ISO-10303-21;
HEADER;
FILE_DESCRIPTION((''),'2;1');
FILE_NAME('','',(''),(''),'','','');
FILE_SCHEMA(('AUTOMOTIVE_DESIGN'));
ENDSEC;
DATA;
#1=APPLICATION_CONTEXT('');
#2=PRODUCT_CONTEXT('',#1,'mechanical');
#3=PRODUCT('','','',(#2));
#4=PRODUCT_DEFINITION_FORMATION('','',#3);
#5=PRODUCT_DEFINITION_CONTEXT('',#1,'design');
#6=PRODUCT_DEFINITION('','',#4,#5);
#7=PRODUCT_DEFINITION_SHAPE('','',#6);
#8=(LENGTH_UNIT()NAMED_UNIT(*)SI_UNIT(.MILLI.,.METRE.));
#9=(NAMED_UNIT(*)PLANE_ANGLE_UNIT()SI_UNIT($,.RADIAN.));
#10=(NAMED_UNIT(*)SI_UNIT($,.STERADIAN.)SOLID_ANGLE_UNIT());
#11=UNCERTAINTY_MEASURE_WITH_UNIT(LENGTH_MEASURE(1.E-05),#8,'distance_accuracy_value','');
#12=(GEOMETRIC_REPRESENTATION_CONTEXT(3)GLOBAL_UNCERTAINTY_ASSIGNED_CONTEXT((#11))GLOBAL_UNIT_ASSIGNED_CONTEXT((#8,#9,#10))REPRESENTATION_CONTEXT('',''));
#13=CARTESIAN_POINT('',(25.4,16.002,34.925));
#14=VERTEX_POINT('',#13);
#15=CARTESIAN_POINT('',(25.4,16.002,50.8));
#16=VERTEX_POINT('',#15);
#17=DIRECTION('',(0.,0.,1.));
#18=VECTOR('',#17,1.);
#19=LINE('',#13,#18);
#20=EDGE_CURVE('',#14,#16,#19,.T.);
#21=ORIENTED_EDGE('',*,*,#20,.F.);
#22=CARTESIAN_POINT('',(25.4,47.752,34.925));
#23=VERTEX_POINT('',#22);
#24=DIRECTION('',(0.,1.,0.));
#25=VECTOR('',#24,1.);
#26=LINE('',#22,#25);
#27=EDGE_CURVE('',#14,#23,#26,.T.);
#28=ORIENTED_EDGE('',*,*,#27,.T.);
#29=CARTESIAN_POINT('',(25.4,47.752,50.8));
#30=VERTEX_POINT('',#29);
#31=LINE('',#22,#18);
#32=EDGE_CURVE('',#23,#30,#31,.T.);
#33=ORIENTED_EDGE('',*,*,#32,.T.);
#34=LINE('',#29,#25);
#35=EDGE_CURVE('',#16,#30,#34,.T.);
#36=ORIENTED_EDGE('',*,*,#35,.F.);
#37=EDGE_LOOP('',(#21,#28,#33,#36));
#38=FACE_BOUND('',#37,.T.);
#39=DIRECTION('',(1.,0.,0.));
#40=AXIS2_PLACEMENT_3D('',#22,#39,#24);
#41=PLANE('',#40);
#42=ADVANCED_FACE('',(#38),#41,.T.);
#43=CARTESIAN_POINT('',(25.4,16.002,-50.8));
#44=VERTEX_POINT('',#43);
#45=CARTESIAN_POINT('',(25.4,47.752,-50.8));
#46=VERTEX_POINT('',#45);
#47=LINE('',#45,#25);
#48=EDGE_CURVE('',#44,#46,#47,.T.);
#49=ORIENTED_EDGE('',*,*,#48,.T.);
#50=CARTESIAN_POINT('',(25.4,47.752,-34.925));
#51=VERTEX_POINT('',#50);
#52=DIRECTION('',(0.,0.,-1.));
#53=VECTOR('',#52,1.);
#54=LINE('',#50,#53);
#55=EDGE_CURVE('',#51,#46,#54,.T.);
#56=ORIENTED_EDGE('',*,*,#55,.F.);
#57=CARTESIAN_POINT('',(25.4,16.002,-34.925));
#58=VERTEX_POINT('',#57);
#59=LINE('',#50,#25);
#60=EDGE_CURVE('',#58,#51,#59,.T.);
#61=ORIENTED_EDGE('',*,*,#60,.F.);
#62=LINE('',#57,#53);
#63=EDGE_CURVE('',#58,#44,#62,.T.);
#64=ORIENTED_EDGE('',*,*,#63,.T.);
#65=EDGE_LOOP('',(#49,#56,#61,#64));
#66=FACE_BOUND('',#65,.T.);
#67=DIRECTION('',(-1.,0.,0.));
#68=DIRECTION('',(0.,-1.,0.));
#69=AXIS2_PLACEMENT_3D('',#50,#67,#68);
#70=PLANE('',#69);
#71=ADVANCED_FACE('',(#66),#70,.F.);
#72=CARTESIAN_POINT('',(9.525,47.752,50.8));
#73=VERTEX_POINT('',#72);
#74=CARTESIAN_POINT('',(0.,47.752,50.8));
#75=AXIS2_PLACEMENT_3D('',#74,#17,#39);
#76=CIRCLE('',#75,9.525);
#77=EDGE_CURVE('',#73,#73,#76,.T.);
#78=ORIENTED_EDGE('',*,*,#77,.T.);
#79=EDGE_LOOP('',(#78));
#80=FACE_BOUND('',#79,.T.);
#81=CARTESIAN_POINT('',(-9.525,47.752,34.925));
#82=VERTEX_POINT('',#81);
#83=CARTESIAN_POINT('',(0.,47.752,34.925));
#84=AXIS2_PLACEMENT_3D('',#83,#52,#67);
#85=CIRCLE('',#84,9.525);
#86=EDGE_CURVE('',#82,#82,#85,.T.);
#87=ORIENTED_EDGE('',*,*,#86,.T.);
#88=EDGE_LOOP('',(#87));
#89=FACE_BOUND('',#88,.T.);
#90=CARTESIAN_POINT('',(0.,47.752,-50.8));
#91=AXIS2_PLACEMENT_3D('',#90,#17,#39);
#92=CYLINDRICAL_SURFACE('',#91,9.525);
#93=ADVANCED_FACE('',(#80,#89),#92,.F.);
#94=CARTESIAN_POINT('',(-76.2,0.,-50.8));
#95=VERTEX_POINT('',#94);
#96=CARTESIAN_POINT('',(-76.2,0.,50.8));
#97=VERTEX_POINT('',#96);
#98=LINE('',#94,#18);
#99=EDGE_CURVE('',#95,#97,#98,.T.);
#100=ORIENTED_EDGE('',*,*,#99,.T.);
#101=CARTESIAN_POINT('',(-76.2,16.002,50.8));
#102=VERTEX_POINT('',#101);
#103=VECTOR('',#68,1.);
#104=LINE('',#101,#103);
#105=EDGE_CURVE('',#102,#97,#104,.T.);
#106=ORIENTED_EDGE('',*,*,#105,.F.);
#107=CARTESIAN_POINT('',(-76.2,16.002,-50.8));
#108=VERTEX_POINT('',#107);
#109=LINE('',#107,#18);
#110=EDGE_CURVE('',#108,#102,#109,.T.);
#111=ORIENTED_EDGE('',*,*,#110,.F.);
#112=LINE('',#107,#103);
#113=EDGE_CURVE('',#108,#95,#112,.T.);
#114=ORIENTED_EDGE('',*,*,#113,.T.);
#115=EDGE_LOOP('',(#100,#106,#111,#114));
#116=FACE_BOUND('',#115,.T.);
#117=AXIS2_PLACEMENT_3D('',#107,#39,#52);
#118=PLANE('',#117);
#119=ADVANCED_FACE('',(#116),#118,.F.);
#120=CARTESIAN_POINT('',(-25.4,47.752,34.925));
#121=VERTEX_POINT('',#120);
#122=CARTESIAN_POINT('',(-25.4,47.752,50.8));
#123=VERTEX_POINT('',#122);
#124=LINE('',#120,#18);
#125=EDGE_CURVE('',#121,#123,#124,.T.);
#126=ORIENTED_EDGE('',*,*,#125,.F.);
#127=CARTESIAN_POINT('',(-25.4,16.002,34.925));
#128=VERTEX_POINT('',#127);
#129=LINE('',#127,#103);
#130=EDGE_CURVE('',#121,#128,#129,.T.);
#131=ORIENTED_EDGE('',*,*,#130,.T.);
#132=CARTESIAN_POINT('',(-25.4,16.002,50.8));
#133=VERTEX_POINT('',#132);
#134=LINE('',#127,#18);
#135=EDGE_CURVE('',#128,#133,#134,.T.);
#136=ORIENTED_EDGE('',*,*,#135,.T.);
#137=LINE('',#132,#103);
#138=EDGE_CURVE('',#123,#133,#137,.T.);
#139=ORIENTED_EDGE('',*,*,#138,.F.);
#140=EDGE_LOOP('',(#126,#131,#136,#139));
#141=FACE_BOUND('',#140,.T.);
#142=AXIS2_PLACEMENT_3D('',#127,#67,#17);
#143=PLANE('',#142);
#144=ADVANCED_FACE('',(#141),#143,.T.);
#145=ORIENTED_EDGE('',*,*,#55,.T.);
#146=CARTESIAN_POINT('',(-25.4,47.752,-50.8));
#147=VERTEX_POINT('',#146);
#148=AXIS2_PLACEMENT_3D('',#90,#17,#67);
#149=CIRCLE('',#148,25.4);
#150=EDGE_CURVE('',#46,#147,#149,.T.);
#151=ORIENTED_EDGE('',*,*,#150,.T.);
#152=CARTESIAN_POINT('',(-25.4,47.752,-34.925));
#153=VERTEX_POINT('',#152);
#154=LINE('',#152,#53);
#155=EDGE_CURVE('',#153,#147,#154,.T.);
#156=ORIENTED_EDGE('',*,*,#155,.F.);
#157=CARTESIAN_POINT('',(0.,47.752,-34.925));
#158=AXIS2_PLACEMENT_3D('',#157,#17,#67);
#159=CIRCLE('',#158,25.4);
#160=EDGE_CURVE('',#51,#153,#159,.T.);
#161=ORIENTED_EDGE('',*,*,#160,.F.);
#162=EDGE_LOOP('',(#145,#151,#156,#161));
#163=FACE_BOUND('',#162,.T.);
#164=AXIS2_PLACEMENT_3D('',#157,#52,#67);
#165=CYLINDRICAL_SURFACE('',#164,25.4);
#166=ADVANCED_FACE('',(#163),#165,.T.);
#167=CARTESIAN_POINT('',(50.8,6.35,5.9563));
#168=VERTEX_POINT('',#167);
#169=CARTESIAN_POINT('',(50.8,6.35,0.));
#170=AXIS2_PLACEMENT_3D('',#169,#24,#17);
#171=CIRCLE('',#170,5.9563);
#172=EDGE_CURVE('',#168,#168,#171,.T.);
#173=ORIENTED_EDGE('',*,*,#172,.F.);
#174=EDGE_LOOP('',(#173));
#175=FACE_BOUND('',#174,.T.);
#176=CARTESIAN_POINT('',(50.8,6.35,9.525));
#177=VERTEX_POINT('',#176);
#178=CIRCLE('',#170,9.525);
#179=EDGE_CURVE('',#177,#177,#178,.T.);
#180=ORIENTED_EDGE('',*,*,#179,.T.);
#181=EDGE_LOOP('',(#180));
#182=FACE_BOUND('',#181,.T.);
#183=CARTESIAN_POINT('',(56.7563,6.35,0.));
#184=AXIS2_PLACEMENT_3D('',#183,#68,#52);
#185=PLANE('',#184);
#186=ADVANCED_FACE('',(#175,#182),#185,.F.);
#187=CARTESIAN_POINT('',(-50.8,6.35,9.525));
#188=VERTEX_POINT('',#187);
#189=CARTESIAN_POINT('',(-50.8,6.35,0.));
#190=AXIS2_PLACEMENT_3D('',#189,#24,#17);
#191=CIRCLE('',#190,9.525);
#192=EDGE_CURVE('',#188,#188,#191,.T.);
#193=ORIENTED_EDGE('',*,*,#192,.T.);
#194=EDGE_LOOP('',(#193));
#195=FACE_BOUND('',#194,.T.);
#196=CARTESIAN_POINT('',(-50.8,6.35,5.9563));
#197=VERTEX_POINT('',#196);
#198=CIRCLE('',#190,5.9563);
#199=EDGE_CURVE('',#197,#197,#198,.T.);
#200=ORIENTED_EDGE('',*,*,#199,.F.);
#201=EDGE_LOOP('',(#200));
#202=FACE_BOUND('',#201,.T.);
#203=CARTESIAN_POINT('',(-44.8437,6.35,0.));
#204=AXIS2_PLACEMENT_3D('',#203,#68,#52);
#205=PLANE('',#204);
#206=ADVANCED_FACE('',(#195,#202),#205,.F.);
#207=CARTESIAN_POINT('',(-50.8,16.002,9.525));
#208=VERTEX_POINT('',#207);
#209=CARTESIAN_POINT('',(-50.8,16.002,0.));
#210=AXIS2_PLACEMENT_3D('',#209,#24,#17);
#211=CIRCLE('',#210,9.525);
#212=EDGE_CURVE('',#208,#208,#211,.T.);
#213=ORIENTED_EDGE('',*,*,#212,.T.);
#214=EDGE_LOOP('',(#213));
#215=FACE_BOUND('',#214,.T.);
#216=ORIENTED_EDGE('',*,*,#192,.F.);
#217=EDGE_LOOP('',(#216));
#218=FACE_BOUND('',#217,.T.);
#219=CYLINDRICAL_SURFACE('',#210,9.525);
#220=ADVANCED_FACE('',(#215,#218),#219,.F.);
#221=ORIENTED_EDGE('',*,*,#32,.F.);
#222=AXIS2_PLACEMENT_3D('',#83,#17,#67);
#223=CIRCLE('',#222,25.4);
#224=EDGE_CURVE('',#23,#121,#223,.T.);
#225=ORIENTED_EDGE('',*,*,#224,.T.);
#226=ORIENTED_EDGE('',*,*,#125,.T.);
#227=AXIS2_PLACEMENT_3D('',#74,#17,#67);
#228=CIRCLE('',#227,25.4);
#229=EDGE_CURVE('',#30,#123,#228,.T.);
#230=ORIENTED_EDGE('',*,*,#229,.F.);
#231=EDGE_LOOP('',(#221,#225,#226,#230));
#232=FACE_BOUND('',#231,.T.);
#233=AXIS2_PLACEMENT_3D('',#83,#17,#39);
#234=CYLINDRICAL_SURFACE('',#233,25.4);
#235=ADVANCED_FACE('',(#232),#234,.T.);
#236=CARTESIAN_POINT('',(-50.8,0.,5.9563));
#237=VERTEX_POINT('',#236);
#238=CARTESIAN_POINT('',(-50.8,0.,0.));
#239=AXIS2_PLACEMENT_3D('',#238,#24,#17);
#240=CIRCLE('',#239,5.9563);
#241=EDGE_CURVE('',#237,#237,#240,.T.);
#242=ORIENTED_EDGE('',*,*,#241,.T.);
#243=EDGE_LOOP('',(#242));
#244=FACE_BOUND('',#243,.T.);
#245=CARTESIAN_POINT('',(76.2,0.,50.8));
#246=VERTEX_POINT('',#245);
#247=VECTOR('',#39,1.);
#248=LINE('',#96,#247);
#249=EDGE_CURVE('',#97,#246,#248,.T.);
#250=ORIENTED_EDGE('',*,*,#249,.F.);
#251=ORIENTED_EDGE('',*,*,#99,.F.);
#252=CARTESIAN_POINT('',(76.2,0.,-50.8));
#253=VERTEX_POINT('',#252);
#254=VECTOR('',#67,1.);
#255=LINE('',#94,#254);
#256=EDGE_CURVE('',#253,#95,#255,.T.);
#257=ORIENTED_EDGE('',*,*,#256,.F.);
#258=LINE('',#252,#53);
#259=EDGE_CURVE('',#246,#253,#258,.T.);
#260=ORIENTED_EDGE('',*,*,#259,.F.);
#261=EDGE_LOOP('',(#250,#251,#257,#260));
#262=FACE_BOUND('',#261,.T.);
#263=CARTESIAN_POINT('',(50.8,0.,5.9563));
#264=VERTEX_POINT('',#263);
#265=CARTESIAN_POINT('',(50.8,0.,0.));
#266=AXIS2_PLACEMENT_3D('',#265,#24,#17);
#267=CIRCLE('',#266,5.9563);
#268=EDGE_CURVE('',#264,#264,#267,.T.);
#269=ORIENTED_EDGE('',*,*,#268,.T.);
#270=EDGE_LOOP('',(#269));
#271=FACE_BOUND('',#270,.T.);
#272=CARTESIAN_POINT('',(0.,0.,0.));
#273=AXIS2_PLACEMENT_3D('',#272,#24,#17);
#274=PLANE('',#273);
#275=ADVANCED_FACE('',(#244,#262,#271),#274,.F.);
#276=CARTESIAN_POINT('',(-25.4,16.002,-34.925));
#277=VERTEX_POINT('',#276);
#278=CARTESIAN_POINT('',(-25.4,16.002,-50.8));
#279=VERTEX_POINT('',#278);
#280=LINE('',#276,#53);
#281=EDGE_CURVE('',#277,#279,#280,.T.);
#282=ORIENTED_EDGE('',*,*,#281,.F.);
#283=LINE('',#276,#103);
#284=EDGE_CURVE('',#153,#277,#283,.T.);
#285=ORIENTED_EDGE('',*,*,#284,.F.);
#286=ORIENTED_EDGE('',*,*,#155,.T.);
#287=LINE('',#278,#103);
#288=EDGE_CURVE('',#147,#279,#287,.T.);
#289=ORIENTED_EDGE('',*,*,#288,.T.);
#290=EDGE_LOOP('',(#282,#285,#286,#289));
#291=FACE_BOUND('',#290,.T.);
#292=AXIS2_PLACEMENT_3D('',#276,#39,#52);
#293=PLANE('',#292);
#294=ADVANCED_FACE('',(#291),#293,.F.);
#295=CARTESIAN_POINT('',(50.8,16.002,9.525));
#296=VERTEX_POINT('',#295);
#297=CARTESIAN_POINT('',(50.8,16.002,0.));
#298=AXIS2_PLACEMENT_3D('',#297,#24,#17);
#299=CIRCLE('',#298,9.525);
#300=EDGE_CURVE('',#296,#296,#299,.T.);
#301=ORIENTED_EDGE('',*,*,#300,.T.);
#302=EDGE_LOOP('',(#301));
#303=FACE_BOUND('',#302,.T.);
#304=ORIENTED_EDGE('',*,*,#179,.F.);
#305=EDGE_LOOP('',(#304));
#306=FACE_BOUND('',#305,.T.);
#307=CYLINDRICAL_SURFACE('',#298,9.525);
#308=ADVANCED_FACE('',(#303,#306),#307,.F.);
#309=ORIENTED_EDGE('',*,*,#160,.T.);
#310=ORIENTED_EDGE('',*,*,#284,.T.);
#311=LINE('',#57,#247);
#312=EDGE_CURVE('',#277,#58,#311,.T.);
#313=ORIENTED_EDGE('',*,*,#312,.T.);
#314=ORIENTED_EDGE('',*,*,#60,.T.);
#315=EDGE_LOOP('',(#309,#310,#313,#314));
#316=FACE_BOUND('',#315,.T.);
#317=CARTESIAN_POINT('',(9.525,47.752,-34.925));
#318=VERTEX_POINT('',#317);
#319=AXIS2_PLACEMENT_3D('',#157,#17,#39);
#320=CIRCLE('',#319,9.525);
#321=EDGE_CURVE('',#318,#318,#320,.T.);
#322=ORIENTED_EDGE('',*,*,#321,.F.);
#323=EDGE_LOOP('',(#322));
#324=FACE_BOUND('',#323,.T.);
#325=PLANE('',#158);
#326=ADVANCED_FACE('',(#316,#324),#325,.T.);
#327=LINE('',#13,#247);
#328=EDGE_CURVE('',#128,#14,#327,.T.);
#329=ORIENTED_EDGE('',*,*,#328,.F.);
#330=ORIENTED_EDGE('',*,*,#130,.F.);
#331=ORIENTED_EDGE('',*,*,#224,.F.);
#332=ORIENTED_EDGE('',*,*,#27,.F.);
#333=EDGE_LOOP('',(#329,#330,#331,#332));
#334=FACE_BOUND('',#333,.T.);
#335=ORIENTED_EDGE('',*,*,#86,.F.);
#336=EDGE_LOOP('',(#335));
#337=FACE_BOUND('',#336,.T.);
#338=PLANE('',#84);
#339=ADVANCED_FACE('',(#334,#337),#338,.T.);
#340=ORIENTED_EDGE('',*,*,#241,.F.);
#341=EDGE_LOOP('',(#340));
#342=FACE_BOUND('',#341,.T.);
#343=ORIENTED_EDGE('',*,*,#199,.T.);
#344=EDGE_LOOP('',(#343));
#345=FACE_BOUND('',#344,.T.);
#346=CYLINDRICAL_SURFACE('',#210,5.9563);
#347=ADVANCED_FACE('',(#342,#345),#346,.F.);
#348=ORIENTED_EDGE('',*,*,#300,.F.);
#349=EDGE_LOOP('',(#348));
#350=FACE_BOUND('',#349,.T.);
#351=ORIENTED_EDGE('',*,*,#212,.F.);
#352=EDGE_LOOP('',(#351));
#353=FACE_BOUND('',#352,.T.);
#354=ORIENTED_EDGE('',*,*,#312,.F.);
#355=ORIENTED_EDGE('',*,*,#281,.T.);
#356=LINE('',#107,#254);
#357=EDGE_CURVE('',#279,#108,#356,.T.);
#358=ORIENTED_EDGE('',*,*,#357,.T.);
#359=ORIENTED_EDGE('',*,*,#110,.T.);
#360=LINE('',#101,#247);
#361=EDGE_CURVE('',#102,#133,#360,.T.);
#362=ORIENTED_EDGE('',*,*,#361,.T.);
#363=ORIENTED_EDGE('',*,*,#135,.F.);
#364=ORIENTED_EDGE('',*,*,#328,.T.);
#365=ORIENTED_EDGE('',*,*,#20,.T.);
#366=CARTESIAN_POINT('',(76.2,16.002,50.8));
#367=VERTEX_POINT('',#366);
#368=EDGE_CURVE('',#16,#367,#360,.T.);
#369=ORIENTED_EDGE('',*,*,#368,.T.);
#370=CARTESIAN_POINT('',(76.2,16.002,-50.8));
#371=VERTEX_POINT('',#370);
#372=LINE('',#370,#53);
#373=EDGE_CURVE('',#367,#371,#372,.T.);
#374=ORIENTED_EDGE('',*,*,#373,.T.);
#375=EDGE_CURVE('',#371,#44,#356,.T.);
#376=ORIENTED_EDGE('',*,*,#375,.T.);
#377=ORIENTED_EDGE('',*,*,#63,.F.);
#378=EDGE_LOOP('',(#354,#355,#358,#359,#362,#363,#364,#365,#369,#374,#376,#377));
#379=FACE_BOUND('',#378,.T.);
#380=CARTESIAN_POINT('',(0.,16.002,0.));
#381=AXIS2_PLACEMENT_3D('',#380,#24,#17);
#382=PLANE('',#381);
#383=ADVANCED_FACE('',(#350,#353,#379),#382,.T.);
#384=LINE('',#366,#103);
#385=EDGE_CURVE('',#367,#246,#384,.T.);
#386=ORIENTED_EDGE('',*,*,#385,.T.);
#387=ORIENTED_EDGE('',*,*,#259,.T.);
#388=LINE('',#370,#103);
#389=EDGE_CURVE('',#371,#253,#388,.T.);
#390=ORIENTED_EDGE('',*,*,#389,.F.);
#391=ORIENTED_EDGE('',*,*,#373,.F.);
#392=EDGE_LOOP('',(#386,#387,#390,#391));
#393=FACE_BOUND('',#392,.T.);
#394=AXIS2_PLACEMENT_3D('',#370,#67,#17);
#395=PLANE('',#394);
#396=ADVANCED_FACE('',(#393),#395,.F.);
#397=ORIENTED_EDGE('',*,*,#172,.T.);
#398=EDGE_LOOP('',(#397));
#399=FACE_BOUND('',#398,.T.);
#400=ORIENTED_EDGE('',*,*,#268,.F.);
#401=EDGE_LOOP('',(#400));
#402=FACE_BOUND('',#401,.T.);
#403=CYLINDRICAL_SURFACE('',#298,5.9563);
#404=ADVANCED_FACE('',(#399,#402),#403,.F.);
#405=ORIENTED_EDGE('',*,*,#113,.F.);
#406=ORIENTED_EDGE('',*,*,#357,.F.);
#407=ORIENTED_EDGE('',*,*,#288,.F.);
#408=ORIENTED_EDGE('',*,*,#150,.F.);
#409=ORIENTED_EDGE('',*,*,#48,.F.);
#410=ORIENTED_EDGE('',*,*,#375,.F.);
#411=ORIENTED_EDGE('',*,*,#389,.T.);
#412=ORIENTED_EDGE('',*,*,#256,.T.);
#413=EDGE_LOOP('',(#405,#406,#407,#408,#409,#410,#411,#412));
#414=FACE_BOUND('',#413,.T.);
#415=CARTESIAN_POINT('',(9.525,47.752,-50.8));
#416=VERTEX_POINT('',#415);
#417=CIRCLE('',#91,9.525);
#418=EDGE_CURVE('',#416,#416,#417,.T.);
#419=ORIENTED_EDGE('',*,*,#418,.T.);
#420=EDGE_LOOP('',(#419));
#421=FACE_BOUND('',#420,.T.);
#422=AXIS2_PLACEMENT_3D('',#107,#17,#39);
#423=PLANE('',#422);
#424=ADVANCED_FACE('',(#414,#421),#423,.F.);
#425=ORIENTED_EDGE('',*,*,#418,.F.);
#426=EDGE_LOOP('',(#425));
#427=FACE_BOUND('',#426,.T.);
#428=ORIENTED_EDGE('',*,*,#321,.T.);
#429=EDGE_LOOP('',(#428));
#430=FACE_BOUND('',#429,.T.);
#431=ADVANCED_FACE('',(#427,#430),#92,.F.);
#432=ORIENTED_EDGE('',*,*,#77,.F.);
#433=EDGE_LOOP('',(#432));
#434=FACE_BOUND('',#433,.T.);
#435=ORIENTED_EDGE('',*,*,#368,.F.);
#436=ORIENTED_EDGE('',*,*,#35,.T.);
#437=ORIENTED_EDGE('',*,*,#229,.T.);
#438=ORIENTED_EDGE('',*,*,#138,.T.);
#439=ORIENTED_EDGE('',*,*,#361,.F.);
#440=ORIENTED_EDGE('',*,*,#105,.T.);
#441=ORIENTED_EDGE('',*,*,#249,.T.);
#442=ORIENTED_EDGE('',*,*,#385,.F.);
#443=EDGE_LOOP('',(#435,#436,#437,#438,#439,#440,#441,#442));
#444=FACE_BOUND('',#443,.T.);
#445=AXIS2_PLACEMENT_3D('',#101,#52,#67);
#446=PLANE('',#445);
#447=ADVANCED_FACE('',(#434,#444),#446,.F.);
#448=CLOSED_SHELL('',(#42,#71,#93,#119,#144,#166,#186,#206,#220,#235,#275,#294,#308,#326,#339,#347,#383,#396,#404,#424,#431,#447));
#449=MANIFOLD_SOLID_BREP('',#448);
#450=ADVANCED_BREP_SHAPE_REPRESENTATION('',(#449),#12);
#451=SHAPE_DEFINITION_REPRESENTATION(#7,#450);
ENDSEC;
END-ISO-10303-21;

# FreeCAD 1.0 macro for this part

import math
import FreeCAD as App
import Part
import Sketcher
Q = App.Units.Quantity


def add_polygon(sketch, points):
    """Adds a closed chain of lines whose ends are joined by coincident constraints."""
    first, n = sketch.GeometryCount, len(points)
    for a, b in zip(points, points[1:] + points[:1]):
        sketch.addGeometry(Part.LineSegment(App.Vector(*a, 0), App.Vector(*b, 0)), False)
    for i in range(n):
        sketch.addConstraint(Sketcher.Constraint("Coincident", first + i, 2, first + (i + 1) % n, 1))

doc = App.newDocument("Part")
body = doc.addObject("PartDesign::Body", "Body")

sketch1 = doc.addObject("Sketcher::SketchObject", "Sketch")
body.addObject(sketch1)
sketch1.AttachmentSupport = (doc.XZ_Plane, [""])
sketch1.MapMode = "FlatFace"
add_polygon(sketch1, [(-76.2, -50.8), (-76.2, 50.8), (76.2, 50.8), (76.2, -50.8)])
sketch1.addConstraint([
    Sketcher.Constraint("Vertical", 0),
    Sketcher.Constraint("Horizontal", 1),
    Sketcher.Constraint("Vertical", 2),
    Sketcher.Constraint("Horizontal", 3),
    Sketcher.Constraint("Symmetric", 0, 2, 2, 2, -1, 1),
    Sketcher.Constraint("DistanceX", 1, 1, 1, 2, Q("6 in")),
    Sketcher.Constraint("DistanceY", 0, 1, 0, 2, Q("4 in")),
])
pad1 = doc.addObject("PartDesign::Pad", "Pad")
body.addObject(pad1)
pad1.Profile = sketch1
pad1.Length = Q("0.63 in")
pad1.Reversed = True

sketch2 = doc.addObject("Sketcher::SketchObject", "Sketch001")
body.addObject(sketch2)
sketch2.AttachmentSupport = (doc.XZ_Plane, [""])
sketch2.MapMode = "FlatFace"
sketch2.AttachmentOffset = App.Placement(App.Vector(0, 0, -0.63 * 25.4), App.Rotation())
sketch2.addGeometry([
    Part.Circle(App.Vector(-50.8, 0, 0), App.Vector(0, 0, 1), 5.9563),
    Part.Circle(App.Vector(50.8, 0, 0), App.Vector(0, 0, 1), 5.9563),
], False)
sketch2.addConstraint([
    Sketcher.Constraint("Equal", 0, 1),
    Sketcher.Constraint("Symmetric", 0, 3, 1, 3, -1, 1),
    Sketcher.Constraint("PointOnObject", 0, 3, -1),
    Sketcher.Constraint("Diameter", 0, Q("0.469 in")),
    Sketcher.Constraint("DistanceX", 0, 3, -1, 1, Q("2 in")),
])
doc.recompute()
hole = doc.addObject("PartDesign::Hole", "Hole")
body.addObject(hole)
hole.Profile = sketch2
hole.ThreadType = "None"
hole.Diameter = Q("0.469 in")
hole.DepthType = "ThroughAll"
hole.HoleCutType = "Counterbore"
hole.HoleCutDiameter = Q("0.75 in")
hole.HoleCutDepth = Q("0.38 in")
hole.Reversed = True

sketch3 = doc.addObject("Sketcher::SketchObject", "Sketch002")
body.addObject(sketch3)
sketch3.AttachmentSupport = (doc.XY_Plane, [""])
sketch3.MapMode = "FlatFace"
sketch3.AttachmentOffset = App.Placement(App.Vector(0, 0, 2 * 25.4), App.Rotation())
sketch3.addGeometry([
    Part.LineSegment(App.Vector(-25.4, 47.752, 0), App.Vector(-25.4, 16.002, 0)),
    Part.LineSegment(App.Vector(-25.4, 16.002, 0), App.Vector(25.4, 16.002, 0)),
    Part.LineSegment(App.Vector(25.4, 16.002, 0), App.Vector(25.4, 47.752, 0)),
    Part.ArcOfCircle(Part.Circle(App.Vector(0, 47.752, 0), App.Vector(0, 0, 1), 25.4), math.radians(0), math.radians(180)),
], False)
sketch3.addConstraint([
    Sketcher.Constraint("Coincident", 0, 2, 1, 1),
    Sketcher.Constraint("Coincident", 1, 2, 2, 1),
    Sketcher.Constraint("Tangent", 2, 2, 3, 1),
    Sketcher.Constraint("Tangent", 3, 2, 0, 1),
    Sketcher.Constraint("Vertical", 0),
    Sketcher.Constraint("Horizontal", 1),
    Sketcher.Constraint("Vertical", 2),
    Sketcher.Constraint("PointOnObject", 3, 3, -2),
    Sketcher.Constraint("Radius", 3, Q("1 in")),
    Sketcher.Constraint("DistanceY", 0, 2, 0, 1, Q("1.25 in")),
    Sketcher.Constraint("DistanceY", -1, 1, 3, 3, Q("1.88 in")),
])
pad2 = doc.addObject("PartDesign::Pad", "Pad001")
body.addObject(pad2)
pad2.Profile = sketch3
pad2.Length = Q("0.625 in")
pad2.Reversed = True
doc.recompute()

mirrored = doc.addObject("PartDesign::Mirrored", "Mirrored")
body.addObject(mirrored)
mirrored.Originals = [pad2]
mirrored.MirrorPlane = (doc.XY_Plane, [""])
body.Tip = mirrored

sketch4 = doc.addObject("Sketcher::SketchObject", "Sketch003")
body.addObject(sketch4)
sketch4.AttachmentSupport = (doc.XY_Plane, [""])
sketch4.MapMode = "FlatFace"
sketch4.AttachmentOffset = App.Placement(App.Vector(0, 0, 2 * 25.4), App.Rotation())
sketch4.addGeometry(Part.Circle(App.Vector(0, 47.752, 0), App.Vector(0, 0, 1), 9.525), False)
sketch4.addConstraint([
    Sketcher.Constraint("PointOnObject", 0, 3, -2),
    Sketcher.Constraint("Diameter", 0, Q("0.75 in")),
    Sketcher.Constraint("DistanceY", -1, 1, 0, 3, Q("1.88 in")),
])
pocket1 = doc.addObject("PartDesign::Pocket", "Pocket")
body.addObject(pocket1)
pocket1.Profile = sketch4
pocket1.Type = "ThroughAll"

doc.recompute()
